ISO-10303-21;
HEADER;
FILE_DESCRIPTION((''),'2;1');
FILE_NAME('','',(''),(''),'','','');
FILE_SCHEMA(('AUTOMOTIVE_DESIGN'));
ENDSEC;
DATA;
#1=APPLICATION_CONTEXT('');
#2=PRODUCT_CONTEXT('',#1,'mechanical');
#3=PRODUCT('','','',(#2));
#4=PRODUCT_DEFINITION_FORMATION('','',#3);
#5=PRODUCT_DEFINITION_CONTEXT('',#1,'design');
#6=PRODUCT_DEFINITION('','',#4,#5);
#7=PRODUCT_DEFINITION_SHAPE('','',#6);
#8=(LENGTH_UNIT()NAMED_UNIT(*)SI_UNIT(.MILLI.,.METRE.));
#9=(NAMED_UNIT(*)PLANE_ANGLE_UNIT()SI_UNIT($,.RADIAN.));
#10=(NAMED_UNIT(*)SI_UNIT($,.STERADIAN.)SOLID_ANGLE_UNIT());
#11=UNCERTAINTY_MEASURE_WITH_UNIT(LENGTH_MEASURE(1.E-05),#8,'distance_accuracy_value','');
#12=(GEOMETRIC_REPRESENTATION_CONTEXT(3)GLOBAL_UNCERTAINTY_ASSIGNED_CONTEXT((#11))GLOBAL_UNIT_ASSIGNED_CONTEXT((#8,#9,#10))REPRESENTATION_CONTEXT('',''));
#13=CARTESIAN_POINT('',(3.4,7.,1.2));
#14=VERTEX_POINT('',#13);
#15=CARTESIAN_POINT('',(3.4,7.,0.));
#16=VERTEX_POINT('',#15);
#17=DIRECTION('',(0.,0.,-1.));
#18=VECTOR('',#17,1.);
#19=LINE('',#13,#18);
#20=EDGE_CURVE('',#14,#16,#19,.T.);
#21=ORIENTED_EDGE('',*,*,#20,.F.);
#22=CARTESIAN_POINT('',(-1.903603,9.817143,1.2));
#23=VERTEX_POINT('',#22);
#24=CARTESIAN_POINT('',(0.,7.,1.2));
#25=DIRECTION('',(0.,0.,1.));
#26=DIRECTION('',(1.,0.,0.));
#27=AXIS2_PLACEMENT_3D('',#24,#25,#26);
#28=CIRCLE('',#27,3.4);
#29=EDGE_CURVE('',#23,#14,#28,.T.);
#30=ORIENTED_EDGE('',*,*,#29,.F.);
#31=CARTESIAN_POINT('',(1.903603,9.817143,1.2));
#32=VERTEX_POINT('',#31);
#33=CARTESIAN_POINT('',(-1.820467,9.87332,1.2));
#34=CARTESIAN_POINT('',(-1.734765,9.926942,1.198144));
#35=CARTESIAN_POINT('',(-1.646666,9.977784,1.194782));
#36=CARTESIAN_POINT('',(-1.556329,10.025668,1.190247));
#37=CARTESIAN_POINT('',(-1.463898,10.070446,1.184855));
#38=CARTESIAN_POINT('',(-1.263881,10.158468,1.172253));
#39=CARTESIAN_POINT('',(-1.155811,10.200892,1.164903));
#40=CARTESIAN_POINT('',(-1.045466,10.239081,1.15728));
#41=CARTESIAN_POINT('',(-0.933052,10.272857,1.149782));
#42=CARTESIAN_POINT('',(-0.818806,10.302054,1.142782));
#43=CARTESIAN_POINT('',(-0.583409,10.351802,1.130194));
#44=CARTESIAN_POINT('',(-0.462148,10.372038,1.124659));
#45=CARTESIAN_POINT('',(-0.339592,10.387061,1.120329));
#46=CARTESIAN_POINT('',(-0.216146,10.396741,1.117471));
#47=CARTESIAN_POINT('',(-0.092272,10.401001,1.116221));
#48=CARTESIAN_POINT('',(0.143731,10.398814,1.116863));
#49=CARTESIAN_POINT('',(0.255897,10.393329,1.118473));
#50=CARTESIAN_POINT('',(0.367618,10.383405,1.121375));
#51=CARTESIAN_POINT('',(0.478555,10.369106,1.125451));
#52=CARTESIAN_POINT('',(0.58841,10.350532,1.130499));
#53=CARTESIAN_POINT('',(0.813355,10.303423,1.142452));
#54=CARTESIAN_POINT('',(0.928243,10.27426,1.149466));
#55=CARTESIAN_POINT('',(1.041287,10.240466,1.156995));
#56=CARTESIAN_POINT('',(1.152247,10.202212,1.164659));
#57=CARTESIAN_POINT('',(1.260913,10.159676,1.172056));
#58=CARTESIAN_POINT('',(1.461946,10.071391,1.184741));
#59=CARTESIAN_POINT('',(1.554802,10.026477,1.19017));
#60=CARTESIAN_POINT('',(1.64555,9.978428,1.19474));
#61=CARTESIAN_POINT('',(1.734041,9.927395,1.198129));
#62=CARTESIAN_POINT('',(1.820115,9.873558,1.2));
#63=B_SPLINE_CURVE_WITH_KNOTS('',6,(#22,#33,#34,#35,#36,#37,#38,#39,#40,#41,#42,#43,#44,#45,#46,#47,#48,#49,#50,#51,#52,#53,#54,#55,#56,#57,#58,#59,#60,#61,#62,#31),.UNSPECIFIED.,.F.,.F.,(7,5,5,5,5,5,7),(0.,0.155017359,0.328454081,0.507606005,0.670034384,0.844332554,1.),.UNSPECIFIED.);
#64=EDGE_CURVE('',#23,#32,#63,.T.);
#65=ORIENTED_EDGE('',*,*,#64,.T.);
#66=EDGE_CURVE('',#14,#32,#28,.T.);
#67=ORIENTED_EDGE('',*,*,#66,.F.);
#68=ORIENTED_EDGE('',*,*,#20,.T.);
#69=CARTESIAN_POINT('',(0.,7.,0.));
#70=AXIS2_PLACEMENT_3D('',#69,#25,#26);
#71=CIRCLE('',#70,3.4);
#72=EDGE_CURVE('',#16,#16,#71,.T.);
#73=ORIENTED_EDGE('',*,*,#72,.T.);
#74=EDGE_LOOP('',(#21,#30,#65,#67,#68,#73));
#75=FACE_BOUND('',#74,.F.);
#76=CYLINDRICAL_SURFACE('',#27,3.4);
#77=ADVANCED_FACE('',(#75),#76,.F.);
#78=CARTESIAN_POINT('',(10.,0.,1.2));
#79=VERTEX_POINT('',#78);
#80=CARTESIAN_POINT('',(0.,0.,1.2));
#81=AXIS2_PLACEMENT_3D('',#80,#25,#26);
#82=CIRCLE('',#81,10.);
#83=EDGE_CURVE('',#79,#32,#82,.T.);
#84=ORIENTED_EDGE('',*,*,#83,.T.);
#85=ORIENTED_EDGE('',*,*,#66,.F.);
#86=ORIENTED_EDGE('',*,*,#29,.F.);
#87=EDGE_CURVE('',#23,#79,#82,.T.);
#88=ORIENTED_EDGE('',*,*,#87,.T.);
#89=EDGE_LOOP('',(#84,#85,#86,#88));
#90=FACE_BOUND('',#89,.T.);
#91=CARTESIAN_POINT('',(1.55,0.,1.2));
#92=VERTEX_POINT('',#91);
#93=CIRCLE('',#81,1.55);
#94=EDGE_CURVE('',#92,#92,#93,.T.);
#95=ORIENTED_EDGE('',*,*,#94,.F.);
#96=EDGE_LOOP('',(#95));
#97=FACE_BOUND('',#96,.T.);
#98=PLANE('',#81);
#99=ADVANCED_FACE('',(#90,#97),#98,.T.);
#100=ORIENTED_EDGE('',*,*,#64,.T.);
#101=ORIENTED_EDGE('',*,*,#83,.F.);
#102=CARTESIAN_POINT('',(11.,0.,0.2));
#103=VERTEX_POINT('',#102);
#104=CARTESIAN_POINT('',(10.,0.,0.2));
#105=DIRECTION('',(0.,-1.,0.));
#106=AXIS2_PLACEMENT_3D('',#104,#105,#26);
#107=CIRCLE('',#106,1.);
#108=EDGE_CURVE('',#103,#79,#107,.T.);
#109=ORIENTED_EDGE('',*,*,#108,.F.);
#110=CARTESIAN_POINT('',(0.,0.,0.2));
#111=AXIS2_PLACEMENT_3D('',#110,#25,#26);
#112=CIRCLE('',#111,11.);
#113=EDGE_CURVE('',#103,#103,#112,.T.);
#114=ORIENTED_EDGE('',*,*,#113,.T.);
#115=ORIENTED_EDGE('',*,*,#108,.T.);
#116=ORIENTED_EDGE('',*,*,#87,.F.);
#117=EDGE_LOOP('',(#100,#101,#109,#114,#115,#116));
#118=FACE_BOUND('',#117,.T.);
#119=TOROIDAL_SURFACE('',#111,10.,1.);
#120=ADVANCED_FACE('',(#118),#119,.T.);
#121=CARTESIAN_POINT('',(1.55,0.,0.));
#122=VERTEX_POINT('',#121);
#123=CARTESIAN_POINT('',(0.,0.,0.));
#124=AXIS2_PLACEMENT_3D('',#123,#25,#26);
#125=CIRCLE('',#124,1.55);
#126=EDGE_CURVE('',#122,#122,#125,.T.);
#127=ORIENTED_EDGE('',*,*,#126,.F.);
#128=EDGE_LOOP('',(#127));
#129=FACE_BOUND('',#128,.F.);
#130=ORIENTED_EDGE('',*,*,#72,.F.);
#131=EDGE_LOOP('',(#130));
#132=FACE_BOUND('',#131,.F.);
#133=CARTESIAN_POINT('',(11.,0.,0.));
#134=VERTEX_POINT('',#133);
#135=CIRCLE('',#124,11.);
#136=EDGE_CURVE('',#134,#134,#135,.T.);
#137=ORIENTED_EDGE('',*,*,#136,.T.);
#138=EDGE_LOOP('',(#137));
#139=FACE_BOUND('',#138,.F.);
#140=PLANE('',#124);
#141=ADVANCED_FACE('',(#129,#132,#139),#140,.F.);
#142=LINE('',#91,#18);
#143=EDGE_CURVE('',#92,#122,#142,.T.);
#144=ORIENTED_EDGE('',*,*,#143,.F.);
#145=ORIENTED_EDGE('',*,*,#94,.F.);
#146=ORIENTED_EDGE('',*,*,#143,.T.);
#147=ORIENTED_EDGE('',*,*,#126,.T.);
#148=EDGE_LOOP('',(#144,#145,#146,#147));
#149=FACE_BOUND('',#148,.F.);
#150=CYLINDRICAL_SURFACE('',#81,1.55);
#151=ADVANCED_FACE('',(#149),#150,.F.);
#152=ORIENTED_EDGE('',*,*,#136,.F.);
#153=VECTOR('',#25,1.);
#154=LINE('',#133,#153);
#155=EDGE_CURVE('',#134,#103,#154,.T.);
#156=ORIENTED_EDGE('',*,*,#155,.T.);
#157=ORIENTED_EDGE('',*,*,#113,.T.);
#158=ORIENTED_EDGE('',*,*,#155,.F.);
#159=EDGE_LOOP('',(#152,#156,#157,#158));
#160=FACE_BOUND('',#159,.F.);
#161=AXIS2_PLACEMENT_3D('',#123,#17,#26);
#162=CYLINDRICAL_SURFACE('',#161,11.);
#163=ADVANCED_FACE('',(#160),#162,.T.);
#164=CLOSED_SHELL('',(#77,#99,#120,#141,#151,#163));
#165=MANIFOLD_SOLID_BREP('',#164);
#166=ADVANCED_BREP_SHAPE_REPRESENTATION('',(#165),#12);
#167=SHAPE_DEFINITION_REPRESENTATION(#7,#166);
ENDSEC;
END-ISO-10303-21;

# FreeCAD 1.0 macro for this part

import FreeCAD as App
import Part
import Sketcher
from FreeCAD import Vector


def edges_at(feature, points):
    """Names of the edges that pass closest to the given points."""
    edges = feature.Shape.Edges
    near = lambda p: min(range(len(edges)), key=lambda i: edges[i].distToShape(Part.Vertex(*p))[0])
    return sorted({f"Edge{near(p) + 1}" for p in points})

doc = App.newDocument("Part")
params = doc.addObject("Spreadsheet::Sheet", "Params")
for row, (alias, value) in enumerate([
    ("sketch1_diameter", "22 mm"),
    ("pad1_length", "1.2 mm"),
    ("fillet_radius", "1 mm"),
    ("sketch2_diameter", "3.1 mm"),
    ("sketch2_diameter2", "6.8 mm"),
    ("pocket1_length", "25 mm"),
], start=1):
    params.set(f"A{row}", alias)
    params.set(f"B{row}", "=" + value)
    params.setAlias(f"B{row}", alias)

body = doc.addObject("PartDesign::Body", "Body")

# Sketch on XY plane
sketch1 = doc.addObject("Sketcher::SketchObject", "Sketch")
body.addObject(sketch1)
sketch1.AttachmentSupport = (doc.XY_Plane, [""])
sketch1.MapMode = "FlatFace"
sketch1.addGeometry(Part.Circle(Vector(0, 0, 0), Vector(0, 0, 1), 11), False)
sketch1.addConstraint(Sketcher.Constraint("Coincident", 0, 3, -1, 1))
sketch1.addConstraint(Sketcher.Constraint("Diameter", 0, 22.0))
sketch1.setExpression("Constraints[1]", "Params.sketch1_diameter")
pad1 = doc.addObject("PartDesign::Pad", "Pad")
body.addObject(pad1)
pad1.Profile = sketch1
pad1.setExpression("Length", "Params.pad1_length")
doc.recompute()

fillet = doc.addObject("PartDesign::Fillet", "Fillet")
body.addObject(fillet)
fillet.Base = (pad1, edges_at(pad1, [(-11, 0, 1.2)]))
fillet.setExpression("Radius", "Params.fillet_radius")

# Sketch on XY plane
sketch2 = doc.addObject("Sketcher::SketchObject", "Sketch001")
body.addObject(sketch2)
sketch2.AttachmentSupport = (doc.XY_Plane, [""])
sketch2.MapMode = "FlatFace"
sketch2.AttachmentOffset = App.Placement(Vector(0, 0, 1.2), App.Rotation())
sketch2.addGeometry(Part.Circle(Vector(0, 0, 0), Vector(0, 0, 1), 1.6), False)
sketch2.addGeometry(Part.Circle(Vector(0, 7, 0), Vector(0, 0, 1), 3.4), False)
sketch2.addConstraint(Sketcher.Constraint("Coincident", 0, 3, -1, 1))
sketch2.addConstraint(Sketcher.Constraint("PointOnObject", 1, 3, -2))
sketch2.addConstraint(Sketcher.Constraint("Diameter", 0, 3.1))
sketch2.addConstraint(Sketcher.Constraint("Diameter", 1, 6.8))
sketch2.addConstraint(Sketcher.Constraint("DistanceY", -1, 1, 1, 3, 7.0))
sketch2.setExpression("Constraints[2]", "Params.sketch2_diameter")
sketch2.setExpression("Constraints[3]", "Params.sketch2_diameter2")
pocket1 = doc.addObject("PartDesign::Pocket", "Pocket")
body.addObject(pocket1)
pocket1.Profile = sketch2
pocket1.setExpression("Length", "Params.pocket1_length")

doc.recompute()
